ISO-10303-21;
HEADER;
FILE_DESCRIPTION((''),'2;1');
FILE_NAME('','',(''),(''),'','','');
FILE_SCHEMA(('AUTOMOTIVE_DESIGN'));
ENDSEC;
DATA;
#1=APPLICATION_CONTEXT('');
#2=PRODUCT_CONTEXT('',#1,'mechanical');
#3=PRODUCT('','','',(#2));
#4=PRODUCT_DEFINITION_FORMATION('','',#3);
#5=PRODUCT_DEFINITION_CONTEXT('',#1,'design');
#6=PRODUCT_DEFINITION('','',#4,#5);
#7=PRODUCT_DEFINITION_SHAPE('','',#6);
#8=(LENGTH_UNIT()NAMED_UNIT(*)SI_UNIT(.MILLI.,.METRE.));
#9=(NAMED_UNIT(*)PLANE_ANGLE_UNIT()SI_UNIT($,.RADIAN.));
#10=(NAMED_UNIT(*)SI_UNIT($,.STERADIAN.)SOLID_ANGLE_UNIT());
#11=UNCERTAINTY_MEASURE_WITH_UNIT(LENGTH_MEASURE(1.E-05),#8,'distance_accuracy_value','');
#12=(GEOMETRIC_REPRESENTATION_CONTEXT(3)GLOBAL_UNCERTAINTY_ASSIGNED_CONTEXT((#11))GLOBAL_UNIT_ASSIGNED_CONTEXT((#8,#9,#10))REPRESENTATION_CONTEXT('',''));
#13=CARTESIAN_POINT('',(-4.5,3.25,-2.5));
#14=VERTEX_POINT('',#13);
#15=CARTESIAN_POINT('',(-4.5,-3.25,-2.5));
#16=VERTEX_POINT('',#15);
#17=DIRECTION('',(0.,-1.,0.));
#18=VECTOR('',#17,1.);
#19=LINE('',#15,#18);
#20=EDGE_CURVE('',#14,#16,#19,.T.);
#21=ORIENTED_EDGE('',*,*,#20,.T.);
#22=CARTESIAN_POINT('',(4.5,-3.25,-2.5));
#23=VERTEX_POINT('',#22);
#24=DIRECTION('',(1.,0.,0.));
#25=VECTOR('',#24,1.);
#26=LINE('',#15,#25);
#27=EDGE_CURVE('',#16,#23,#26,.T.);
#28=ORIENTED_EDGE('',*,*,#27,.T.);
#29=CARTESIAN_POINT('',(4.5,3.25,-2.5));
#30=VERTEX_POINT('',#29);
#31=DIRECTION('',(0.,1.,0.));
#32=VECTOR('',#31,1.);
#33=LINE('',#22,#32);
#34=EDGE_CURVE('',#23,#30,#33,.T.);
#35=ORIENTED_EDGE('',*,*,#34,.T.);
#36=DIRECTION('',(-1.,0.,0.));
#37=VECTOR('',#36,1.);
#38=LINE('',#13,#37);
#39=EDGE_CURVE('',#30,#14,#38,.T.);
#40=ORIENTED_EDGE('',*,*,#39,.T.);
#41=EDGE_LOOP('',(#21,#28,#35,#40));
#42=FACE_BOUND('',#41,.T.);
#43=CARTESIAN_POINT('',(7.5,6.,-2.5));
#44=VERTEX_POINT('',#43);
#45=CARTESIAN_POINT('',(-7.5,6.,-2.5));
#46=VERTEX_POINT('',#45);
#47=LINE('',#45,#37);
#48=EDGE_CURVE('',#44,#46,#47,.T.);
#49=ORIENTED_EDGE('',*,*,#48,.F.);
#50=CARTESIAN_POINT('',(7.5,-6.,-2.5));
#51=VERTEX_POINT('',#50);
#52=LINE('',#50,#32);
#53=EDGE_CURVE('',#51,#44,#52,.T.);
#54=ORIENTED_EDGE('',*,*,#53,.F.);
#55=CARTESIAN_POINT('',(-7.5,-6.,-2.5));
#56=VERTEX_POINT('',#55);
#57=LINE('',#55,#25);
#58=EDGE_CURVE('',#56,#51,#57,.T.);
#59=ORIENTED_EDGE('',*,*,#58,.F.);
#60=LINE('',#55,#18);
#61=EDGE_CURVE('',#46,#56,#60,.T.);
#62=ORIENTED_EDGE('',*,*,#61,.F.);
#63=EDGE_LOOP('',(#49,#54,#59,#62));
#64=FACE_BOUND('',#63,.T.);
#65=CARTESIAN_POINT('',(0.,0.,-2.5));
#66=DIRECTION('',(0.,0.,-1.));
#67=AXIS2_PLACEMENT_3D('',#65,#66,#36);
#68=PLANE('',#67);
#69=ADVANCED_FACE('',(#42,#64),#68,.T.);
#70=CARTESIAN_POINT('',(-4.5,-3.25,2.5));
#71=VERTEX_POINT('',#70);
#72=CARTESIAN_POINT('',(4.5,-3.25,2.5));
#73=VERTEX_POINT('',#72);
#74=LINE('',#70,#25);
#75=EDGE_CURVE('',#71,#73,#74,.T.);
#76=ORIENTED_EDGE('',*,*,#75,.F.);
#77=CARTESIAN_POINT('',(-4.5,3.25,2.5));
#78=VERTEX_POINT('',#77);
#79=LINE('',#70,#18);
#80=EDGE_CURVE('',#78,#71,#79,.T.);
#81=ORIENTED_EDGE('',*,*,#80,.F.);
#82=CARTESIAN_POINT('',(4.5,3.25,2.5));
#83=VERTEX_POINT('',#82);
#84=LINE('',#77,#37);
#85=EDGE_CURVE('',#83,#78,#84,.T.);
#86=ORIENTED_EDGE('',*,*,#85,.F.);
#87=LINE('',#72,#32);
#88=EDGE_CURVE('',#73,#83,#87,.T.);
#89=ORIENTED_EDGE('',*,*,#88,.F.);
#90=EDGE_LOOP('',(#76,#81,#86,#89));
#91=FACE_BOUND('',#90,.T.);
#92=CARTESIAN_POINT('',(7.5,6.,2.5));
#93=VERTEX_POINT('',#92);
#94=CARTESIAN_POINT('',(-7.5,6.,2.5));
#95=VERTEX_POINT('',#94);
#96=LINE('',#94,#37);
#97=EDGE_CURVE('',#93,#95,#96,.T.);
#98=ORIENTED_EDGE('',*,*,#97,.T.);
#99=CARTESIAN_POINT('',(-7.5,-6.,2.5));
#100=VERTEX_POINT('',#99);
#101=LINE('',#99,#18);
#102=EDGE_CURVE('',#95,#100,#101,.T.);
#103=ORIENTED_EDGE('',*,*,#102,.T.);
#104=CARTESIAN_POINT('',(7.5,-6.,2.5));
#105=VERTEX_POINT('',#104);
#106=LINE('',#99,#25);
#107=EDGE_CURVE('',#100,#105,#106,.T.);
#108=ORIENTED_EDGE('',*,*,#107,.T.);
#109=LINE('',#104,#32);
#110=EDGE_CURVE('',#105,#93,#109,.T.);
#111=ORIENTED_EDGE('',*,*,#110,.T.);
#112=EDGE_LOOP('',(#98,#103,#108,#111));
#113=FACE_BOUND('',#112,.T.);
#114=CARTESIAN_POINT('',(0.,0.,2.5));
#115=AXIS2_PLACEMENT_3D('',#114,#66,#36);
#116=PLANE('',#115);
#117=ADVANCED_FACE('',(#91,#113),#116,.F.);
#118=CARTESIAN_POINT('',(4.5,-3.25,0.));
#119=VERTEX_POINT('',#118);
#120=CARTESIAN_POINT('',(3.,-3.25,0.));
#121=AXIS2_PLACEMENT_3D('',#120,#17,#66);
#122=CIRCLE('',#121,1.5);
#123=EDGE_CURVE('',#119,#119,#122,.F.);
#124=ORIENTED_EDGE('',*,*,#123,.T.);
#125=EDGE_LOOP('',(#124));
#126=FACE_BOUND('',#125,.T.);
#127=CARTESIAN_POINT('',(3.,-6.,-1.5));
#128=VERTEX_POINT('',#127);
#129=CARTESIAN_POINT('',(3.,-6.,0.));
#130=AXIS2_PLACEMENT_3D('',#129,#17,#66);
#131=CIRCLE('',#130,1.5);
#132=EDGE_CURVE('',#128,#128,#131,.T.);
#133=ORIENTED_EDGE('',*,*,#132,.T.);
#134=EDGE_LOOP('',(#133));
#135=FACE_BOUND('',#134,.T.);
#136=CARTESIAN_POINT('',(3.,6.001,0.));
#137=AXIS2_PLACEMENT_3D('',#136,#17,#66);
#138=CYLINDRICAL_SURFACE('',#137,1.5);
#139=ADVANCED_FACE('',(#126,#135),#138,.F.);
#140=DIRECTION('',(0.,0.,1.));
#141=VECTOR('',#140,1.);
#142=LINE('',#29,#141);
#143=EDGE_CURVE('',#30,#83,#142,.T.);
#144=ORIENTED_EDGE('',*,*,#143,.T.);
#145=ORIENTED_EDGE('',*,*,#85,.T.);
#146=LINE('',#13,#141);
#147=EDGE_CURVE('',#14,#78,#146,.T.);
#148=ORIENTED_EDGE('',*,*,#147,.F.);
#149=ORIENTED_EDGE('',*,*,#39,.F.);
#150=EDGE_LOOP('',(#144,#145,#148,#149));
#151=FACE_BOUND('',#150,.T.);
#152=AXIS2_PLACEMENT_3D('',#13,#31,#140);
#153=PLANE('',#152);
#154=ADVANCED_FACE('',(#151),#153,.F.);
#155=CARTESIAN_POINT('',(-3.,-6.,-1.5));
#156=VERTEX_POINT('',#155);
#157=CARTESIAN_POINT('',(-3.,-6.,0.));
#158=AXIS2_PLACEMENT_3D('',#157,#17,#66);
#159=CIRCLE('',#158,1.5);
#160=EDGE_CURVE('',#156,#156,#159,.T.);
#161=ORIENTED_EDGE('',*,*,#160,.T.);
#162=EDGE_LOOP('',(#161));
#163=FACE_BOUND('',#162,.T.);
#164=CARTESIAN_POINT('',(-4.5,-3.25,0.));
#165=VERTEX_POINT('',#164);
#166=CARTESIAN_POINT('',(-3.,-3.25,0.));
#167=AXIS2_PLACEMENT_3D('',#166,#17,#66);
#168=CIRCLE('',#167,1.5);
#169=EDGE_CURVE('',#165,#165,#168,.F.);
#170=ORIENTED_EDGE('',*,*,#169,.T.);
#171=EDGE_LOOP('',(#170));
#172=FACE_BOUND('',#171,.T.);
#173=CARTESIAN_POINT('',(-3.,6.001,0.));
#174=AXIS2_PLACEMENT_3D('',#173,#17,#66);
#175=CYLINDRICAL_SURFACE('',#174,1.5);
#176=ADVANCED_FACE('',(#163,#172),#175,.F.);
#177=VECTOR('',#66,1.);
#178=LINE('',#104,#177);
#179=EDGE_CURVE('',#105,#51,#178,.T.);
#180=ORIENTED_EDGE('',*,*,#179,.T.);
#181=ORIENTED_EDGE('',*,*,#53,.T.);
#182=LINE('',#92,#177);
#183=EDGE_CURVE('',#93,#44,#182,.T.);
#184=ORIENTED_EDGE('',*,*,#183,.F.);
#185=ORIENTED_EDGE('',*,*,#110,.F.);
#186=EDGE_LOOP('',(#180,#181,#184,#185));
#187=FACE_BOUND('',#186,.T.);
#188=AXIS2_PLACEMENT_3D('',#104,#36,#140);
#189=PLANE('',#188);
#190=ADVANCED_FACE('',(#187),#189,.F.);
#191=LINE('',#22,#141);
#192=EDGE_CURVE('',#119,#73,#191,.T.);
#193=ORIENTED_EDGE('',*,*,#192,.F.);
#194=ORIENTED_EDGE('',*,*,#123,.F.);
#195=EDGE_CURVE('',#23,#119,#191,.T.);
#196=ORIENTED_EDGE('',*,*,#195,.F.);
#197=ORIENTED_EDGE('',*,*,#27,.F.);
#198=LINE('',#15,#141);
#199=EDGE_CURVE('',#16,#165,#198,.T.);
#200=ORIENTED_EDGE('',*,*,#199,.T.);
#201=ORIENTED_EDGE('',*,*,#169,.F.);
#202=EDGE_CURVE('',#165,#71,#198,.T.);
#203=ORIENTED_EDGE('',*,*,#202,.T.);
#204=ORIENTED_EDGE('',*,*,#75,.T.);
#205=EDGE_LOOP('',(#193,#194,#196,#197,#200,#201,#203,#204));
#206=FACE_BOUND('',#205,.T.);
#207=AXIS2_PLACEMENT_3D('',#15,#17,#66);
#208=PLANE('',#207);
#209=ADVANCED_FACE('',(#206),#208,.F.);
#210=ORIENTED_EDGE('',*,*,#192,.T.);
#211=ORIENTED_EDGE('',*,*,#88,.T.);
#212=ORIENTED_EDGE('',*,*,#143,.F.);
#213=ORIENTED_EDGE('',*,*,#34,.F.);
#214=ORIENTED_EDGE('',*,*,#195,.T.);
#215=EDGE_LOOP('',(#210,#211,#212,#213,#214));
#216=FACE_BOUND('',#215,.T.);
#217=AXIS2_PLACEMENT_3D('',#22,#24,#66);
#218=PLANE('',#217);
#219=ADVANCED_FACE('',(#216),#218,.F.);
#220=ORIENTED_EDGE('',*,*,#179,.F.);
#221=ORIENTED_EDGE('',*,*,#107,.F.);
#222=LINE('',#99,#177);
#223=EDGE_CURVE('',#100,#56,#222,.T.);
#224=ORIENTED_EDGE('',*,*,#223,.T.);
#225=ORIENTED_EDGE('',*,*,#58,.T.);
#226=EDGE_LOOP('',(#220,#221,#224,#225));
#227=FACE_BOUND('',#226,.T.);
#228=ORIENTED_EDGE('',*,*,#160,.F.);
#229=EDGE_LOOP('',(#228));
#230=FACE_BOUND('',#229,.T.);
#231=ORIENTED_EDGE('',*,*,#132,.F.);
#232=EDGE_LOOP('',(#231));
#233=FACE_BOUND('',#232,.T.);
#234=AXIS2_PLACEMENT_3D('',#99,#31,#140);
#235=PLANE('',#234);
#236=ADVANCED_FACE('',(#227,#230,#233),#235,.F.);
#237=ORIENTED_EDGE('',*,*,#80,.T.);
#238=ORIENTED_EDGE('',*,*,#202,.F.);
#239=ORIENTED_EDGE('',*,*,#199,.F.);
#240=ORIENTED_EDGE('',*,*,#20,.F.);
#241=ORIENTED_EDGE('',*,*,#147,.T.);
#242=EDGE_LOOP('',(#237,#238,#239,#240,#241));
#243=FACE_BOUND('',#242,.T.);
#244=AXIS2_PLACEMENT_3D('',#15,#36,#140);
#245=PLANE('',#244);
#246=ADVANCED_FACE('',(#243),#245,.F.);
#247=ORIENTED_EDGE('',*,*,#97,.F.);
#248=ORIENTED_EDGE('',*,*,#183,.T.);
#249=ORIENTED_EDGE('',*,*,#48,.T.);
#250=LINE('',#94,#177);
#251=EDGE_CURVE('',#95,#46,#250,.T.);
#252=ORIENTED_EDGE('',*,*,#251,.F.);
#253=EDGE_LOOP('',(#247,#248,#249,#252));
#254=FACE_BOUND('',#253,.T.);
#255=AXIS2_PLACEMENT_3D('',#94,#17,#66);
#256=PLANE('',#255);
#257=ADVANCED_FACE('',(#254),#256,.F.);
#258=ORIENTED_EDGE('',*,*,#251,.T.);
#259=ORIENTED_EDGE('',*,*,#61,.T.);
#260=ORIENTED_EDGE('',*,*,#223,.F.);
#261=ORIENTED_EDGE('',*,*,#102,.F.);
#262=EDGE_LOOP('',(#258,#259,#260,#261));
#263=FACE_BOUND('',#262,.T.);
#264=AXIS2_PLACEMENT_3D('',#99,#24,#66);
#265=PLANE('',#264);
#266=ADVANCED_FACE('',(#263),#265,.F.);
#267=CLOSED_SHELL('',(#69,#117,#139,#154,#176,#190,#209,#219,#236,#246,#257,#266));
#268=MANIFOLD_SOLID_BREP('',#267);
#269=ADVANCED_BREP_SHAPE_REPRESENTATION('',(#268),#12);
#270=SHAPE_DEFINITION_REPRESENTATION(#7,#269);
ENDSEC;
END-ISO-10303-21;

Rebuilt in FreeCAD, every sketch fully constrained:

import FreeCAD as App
import Part
import Sketcher

V = App.Vector


def add_polygon(sketch, points):
    """Adds a closed chain of lines whose ends are joined by coincident constraints."""
    first, n = sketch.GeometryCount, len(points)
    for a, b in zip(points, points[1:] + points[:1]):
        sketch.addGeometry(Part.LineSegment(App.Vector(*a, 0), App.Vector(*b, 0)), False)
    for i in range(n):
        sketch.addConstraint(Sketcher.Constraint("Coincident", first + i, 2, first + (i + 1) % n, 1))

doc = App.newDocument("Part")
body = doc.addObject("PartDesign::Body", "Body")

# Sketch on XY plane
sketch1 = doc.addObject("Sketcher::SketchObject", "Sketch")
body.addObject(sketch1)
sketch1.AttachmentSupport = (doc.XY_Plane, [""])
sketch1.MapMode = "FlatFace"
add_polygon(sketch1, [(-8, 6), (-8, -6), (8, -6), (8, 6)])  # lines 0-3
sketch1.addConstraint(Sketcher.Constraint("Vertical", 0))
sketch1.addConstraint(Sketcher.Constraint("Horizontal", 1))
sketch1.addConstraint(Sketcher.Constraint("Vertical", 2))
sketch1.addConstraint(Sketcher.Constraint("Horizontal", 3))
sketch1.addConstraint(Sketcher.Constraint("Symmetric", 0, 2, 2, 2, -1, 1))
sketch1.addConstraint(Sketcher.Constraint("DistanceX", 1, 1, 1, 2, 15.0))
sketch1.addConstraint(Sketcher.Constraint("DistanceY", 0, 2, 0, 1, 12.0))
pad1 = doc.addObject("PartDesign::Pad", "Pad")
body.addObject(pad1)
pad1.Profile = sketch1
pad1.Length = 5
pad1.Midplane = True

# Sketch on XY plane
sketch2 = doc.addObject("Sketcher::SketchObject", "Sketch001")
body.addObject(sketch2)
sketch2.AttachmentSupport = (doc.XY_Plane, [""])
sketch2.MapMode = "FlatFace"
sketch2.AttachmentOffset = App.Placement(V(0, 0, 2.5), App.Rotation())
add_polygon(sketch2, [(-4, 3), (-4, -3), (4, -3), (4, 3)])  # lines 0-3
sketch2.addConstraint(Sketcher.Constraint("Vertical", 0))
sketch2.addConstraint(Sketcher.Constraint("Horizontal", 1))
sketch2.addConstraint(Sketcher.Constraint("Vertical", 2))
sketch2.addConstraint(Sketcher.Constraint("Horizontal", 3))
sketch2.addConstraint(Sketcher.Constraint("Symmetric", 0, 2, 2, 2, -1, 1))
sketch2.addConstraint(Sketcher.Constraint("DistanceX", 1, 1, 1, 2, 9.0))
sketch2.addConstraint(Sketcher.Constraint("DistanceY", 0, 2, 0, 1, 6.5))
pocket1 = doc.addObject("PartDesign::Pocket", "Pocket")
body.addObject(pocket1)
pocket1.Profile = sketch2
pocket1.Type = "ThroughAll"

# Sketch on XZ plane
sketch3 = doc.addObject("Sketcher::SketchObject", "Sketch002")
body.addObject(sketch3)
sketch3.AttachmentSupport = (doc.XZ_Plane, [""])
sketch3.MapMode = "FlatFace"
sketch3.AttachmentOffset = App.Placement(V(0, 0, 6), App.Rotation())
sketch3.addGeometry(Part.Circle(V(-3, 0, 0), V(0, 0, 1), 1.5), False)
sketch3.addConstraint(Sketcher.Constraint("PointOnObject", 0, 3, -1))
sketch3.addConstraint(Sketcher.Constraint("Diameter", 0, 3.0))
sketch3.addConstraint(Sketcher.Constraint("DistanceX", 0, 3, -1, 1, 3.0))
pocket2 = doc.addObject("PartDesign::Pocket", "Pocket001")
body.addObject(pocket2)
pocket2.Profile = sketch3
pocket2.Type = "UpToFirst"

# Sketch on XZ plane
sketch4 = doc.addObject("Sketcher::SketchObject", "Sketch003")
body.addObject(sketch4)
sketch4.AttachmentSupport = (doc.XZ_Plane, [""])
sketch4.MapMode = "FlatFace"
sketch4.AttachmentOffset = App.Placement(V(0, 0, 6), App.Rotation())
sketch4.addGeometry(Part.Circle(V(3, 0, 0), V(0, 0, 1), 1.5), False)
sketch4.addConstraint(Sketcher.Constraint("PointOnObject", 0, 3, -1))
sketch4.addConstraint(Sketcher.Constraint("Diameter", 0, 3.0))
sketch4.addConstraint(Sketcher.Constraint("DistanceX", -1, 1, 0, 3, 3.0))
pocket3 = doc.addObject("PartDesign::Pocket", "Pocket002")
body.addObject(pocket3)
pocket3.Profile = sketch4
pocket3.Type = "UpToFirst"

doc.recompute()
